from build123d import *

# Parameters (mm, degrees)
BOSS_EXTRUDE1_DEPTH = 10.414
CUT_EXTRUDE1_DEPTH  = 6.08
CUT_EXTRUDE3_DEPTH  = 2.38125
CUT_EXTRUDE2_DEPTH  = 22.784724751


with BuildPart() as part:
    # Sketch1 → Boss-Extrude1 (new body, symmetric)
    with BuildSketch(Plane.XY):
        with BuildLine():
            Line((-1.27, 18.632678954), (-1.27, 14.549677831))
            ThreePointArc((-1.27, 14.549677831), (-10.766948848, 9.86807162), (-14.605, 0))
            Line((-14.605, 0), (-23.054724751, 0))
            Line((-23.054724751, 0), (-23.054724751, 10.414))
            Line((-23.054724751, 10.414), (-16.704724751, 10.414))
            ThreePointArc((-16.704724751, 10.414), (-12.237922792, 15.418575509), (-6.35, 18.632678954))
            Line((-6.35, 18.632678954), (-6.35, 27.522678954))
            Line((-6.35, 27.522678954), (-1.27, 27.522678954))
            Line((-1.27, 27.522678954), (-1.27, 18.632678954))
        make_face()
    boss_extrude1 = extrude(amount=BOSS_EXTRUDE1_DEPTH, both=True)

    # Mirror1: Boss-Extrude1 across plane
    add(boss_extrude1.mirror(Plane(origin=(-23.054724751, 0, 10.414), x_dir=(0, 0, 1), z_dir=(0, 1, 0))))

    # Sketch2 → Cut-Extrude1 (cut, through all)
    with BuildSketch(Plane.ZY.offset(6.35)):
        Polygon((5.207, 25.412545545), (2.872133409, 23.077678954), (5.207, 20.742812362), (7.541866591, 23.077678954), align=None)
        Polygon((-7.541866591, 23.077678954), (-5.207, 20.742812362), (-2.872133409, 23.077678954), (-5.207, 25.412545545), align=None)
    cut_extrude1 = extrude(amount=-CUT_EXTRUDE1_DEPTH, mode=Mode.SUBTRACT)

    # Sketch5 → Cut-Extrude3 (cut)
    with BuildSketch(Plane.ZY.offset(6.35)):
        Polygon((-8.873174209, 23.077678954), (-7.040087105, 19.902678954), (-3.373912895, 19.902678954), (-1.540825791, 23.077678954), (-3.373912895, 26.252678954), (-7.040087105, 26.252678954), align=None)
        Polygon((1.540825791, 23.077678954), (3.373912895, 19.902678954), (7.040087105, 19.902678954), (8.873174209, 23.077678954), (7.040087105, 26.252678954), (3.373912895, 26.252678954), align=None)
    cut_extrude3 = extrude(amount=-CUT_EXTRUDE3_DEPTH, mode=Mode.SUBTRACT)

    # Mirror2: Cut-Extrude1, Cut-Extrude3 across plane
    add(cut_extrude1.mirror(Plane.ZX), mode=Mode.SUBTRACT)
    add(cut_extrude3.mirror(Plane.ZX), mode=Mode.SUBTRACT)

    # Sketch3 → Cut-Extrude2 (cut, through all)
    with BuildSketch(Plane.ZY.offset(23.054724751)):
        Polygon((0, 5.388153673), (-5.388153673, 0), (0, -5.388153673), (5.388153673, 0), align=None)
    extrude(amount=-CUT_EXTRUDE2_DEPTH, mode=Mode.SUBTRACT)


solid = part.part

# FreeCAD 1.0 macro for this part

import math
import FreeCAD as App
import Part
import Sketcher
from FreeCAD import Vector
Q = App.Units.Quantity

doc = App.newDocument("Part")
body = doc.addObject("PartDesign::Body", "Body")

sketch1 = body.newObject("Sketcher::SketchObject", "Sketch")
sketch1.AttachmentSupport = (doc.getObject("XY_Plane"), [""])
sketch1.MapMode = "FlatFace"
sketch1.addGeometry(Part.ArcOfCircle(Part.Circle(Vector(0, 0, 0), Vector(0, 0, 1), 15), math.radians(95), math.radians(180)), False)
sketch1.addGeometry(Part.LineSegment(Vector(-1, 15, 0), Vector(-1, 28, 0)), False)
sketch1.addGeometry(Part.LineSegment(Vector(-1, 28, 0), Vector(-6, 28, 0)), False)
sketch1.addGeometry(Part.LineSegment(Vector(-6, 28, 0), Vector(-6, 19, 0)), False)
sketch1.addGeometry(Part.ArcOfCircle(Part.Circle(Vector(0, 0, 0), Vector(0, 0, 1), 20), math.radians(109), math.radians(148)), False)
sketch1.addGeometry(Part.LineSegment(Vector(-17, 10, 0), Vector(-23, 10, 0)), False)
sketch1.addGeometry(Part.LineSegment(Vector(-23, 10, 0), Vector(-23, 0, 0)), False)
sketch1.addGeometry(Part.LineSegment(Vector(-23, 0, 0), Vector(-15, 0, 0)), False)
sketch1.addConstraint(Sketcher.Constraint("Coincident", 0, 1, 1, 1))
sketch1.addConstraint(Sketcher.Constraint("Coincident", 1, 2, 2, 1))
sketch1.addConstraint(Sketcher.Constraint("Coincident", 2, 2, 3, 1))
sketch1.addConstraint(Sketcher.Constraint("Coincident", 3, 2, 4, 1))
sketch1.addConstraint(Sketcher.Constraint("Coincident", 4, 2, 5, 1))
sketch1.addConstraint(Sketcher.Constraint("Coincident", 5, 2, 6, 1))
sketch1.addConstraint(Sketcher.Constraint("Coincident", 6, 2, 7, 1))
sketch1.addConstraint(Sketcher.Constraint("Coincident", 7, 2, 0, 2))
sketch1.addConstraint(Sketcher.Constraint("Vertical", 1))
sketch1.addConstraint(Sketcher.Constraint("Horizontal", 2))
sketch1.addConstraint(Sketcher.Constraint("Vertical", 3))
sketch1.addConstraint(Sketcher.Constraint("Horizontal", 5))
sketch1.addConstraint(Sketcher.Constraint("Vertical", 6))
sketch1.addConstraint(Sketcher.Constraint("Horizontal", 7))
sketch1.addConstraint(Sketcher.Constraint("Coincident", 0, 3, -1, 1))
sketch1.addConstraint(Sketcher.Constraint("Coincident", 4, 3, -1, 1))
sketch1.addConstraint(Sketcher.Constraint("PointOnObject", 6, 2, -1))
sketch1.addConstraint(Sketcher.Constraint("DistanceX", 2, 2, 2, 1, Q("0.2 in")))
sketch1.addConstraint(Sketcher.Constraint("Radius", 0, Q("0.575 in")))
sketch1.addConstraint(Sketcher.Constraint("Radius", 4, Q("0.775 in")))
sketch1.addConstraint(Sketcher.Constraint("DistanceX", 5, 2, 5, 1, Q("0.25 in")))
sketch1.addConstraint(Sketcher.Constraint("DistanceY", 3, 2, 3, 1, Q("0.35 in")))
sketch1.addConstraint(Sketcher.Constraint("DistanceY", 6, 2, 6, 1, Q("0.41 in")))
sketch1.addConstraint(Sketcher.Constraint("DistanceX", 0, 1, -1, 1, Q("0.05 in")))
pad1 = body.newObject("PartDesign::Pad", "Pad")
pad1.Profile = sketch1
pad1.Length = Q("0.82 in")
pad1.Midplane = True
doc.recompute()

mirrored = body.newObject("PartDesign::Mirrored", "Mirrored")
mirrored.Originals = [pad1]
mirrored.MirrorPlane = (doc.getObject("XZ_Plane"), [""])
body.Tip = mirrored

sketch2 = body.newObject("Sketcher::SketchObject", "Sketch001")
sketch2.AttachmentSupport = (doc.getObject("YZ_Plane"), [""])
sketch2.MapMode = "FlatFace"
sketch2.AttachmentOffset = App.Placement(Vector(0, 0, -0.25 * 25.4), App.Rotation())
sketch2.addGeometry(Part.LineSegment(Vector(25.4, 5.2, 0), Vector(23.1, 2.9, 0)), False)
sketch2.addGeometry(Part.LineSegment(Vector(23.1, 2.9, 0), Vector(20.7, 5.2, 0)), False)
sketch2.addGeometry(Part.LineSegment(Vector(20.7, 5.2, 0), Vector(23.1, 7.5, 0)), False)
sketch2.addGeometry(Part.LineSegment(Vector(23.1, 7.5, 0), Vector(25.4, 5.2, 0)), False)
sketch2.addGeometry(Part.LineSegment(Vector(23.1, -7.5, 0), Vector(20.7, -5.2, 0)), False)
sketch2.addGeometry(Part.LineSegment(Vector(20.7, -5.2, 0), Vector(23.1, -2.9, 0)), False)
sketch2.addGeometry(Part.LineSegment(Vector(23.1, -2.9, 0), Vector(25.4, -5.2, 0)), False)
sketch2.addGeometry(Part.LineSegment(Vector(25.4, -5.2, 0), Vector(23.1, -7.5, 0)), False)
sketch2.addConstraint(Sketcher.Constraint("Coincident", 0, 2, 1, 1))
sketch2.addConstraint(Sketcher.Constraint("Coincident", 1, 2, 2, 1))
sketch2.addConstraint(Sketcher.Constraint("Coincident", 2, 2, 3, 1))
sketch2.addConstraint(Sketcher.Constraint("Coincident", 3, 2, 0, 1))
sketch2.addConstraint(Sketcher.Constraint("Coincident", 4, 2, 5, 1))
sketch2.addConstraint(Sketcher.Constraint("Coincident", 5, 2, 6, 1))
sketch2.addConstraint(Sketcher.Constraint("Coincident", 6, 2, 7, 1))
sketch2.addConstraint(Sketcher.Constraint("Coincident", 7, 2, 4, 1))
sketch2.addConstraint(Sketcher.Constraint("Symmetric", 1, 2, 4, 2, -1))
sketch2.addConstraint(Sketcher.Constraint("Symmetric", 0, 2, 5, 2, -1))
sketch2.addConstraint(Sketcher.Constraint("Symmetric", 3, 2, 6, 2, -1))
sketch2.addConstraint(Sketcher.Constraint("Symmetric", 2, 2, 7, 2, -1))
sketch2.addConstraint(Sketcher.Constraint("Perpendicular", 0, 1))
sketch2.addConstraint(Sketcher.Constraint("Perpendicular", 1, 2))
sketch2.addConstraint(Sketcher.Constraint("Perpendicular", 2, 3))
sketch2.addConstraint(Sketcher.Constraint("Parallel", 3, 4))
sketch2.addConstraint(Sketcher.Constraint("Horizontal", 1, 2, 3, 2))
sketch2.addConstraint(Sketcher.Constraint("Distance", 0, Q("0.13 in")))
sketch2.addConstraint(Sketcher.Constraint("DistanceY", 4, 2, 1, 2, Q("0.41 in")))
sketch2.addConstraint(Sketcher.Constraint("DistanceX", -1, 1, 0, 2, Q("23.077679 mm")))
pocket1 = body.newObject("PartDesign::Pocket", "Pocket")
pocket1.Profile = sketch2
pocket1.Type = "ThroughAll"
pocket1.Reversed = True

sketch3 = body.newObject("Sketcher::SketchObject", "Sketch002")
sketch3.AttachmentSupport = (doc.getObject("YZ_Plane"), [""])
sketch3.MapMode = "FlatFace"
sketch3.AttachmentOffset = App.Placement(Vector(0, 0, -0.25 * 25.4), App.Rotation())
sketch3.addGeometry(Part.LineSegment(Vector(23.1, -8.9, 0), Vector(19.9, -7, 0)), False)
sketch3.addGeometry(Part.LineSegment(Vector(19.9, -7, 0), Vector(19.9, -3.4, 0)), False)
sketch3.addGeometry(Part.LineSegment(Vector(19.9, -3.4, 0), Vector(23.1, -1.5, 0)), False)
sketch3.addGeometry(Part.LineSegment(Vector(23.1, -1.5, 0), Vector(26.3, -3.4, 0)), False)
sketch3.addGeometry(Part.LineSegment(Vector(26.3, -3.4, 0), Vector(26.3, -7, 0)), False)
sketch3.addGeometry(Part.LineSegment(Vector(26.3, -7, 0), Vector(23.1, -8.9, 0)), False)
sketch3.addGeometry(Part.LineSegment(Vector(23.1, 1.5, 0), Vector(19.9, 3.4, 0)), False)
sketch3.addGeometry(Part.LineSegment(Vector(19.9, 3.4, 0), Vector(19.9, 7, 0)), False)
sketch3.addGeometry(Part.LineSegment(Vector(19.9, 7, 0), Vector(23.1, 8.9, 0)), False)
sketch3.addGeometry(Part.LineSegment(Vector(23.1, 8.9, 0), Vector(26.3, 7, 0)), False)
sketch3.addGeometry(Part.LineSegment(Vector(26.3, 7, 0), Vector(26.3, 3.4, 0)), False)
sketch3.addGeometry(Part.LineSegment(Vector(26.3, 3.4, 0), Vector(23.1, 1.5, 0)), False)
sketch3.addConstraint(Sketcher.Constraint("Coincident", 0, 2, 1, 1))
sketch3.addConstraint(Sketcher.Constraint("Coincident", 1, 2, 2, 1))
sketch3.addConstraint(Sketcher.Constraint("Coincident", 2, 2, 3, 1))
sketch3.addConstraint(Sketcher.Constraint("Coincident", 3, 2, 4, 1))
sketch3.addConstraint(Sketcher.Constraint("Coincident", 4, 2, 5, 1))
sketch3.addConstraint(Sketcher.Constraint("Coincident", 5, 2, 0, 1))
sketch3.addConstraint(Sketcher.Constraint("Coincident", 6, 2, 7, 1))
sketch3.addConstraint(Sketcher.Constraint("Coincident", 7, 2, 8, 1))
sketch3.addConstraint(Sketcher.Constraint("Coincident", 8, 2, 9, 1))
sketch3.addConstraint(Sketcher.Constraint("Coincident", 9, 2, 10, 1))
sketch3.addConstraint(Sketcher.Constraint("Coincident", 10, 2, 11, 1))
sketch3.addConstraint(Sketcher.Constraint("Coincident", 11, 2, 6, 1))
sketch3.addConstraint(Sketcher.Constraint("Vertical", 1))
sketch3.addConstraint(Sketcher.Constraint("Vertical", 4))
sketch3.addConstraint(Sketcher.Constraint("Vertical", 7))
sketch3.addConstraint(Sketcher.Constraint("Vertical", 10))
sketch3.addConstraint(Sketcher.Constraint("Symmetric", 1, 2, 6, 2, -1))
sketch3.addConstraint(Sketcher.Constraint("Symmetric", 5, 2, 8, 2, -1))
sketch3.addConstraint(Sketcher.Constraint("Symmetric", 4, 2, 9, 2, -1))
sketch3.addConstraint(Sketcher.Constraint("Symmetric", 2, 2, 11, 2, -1))
sketch3.addConstraint(Sketcher.Constraint("Parallel", 0, 3))
sketch3.addConstraint(Sketcher.Constraint("Parallel", 2, 5))
sketch3.addConstraint(Sketcher.Constraint("Parallel", 3, 6))
sketch3.addConstraint(Sketcher.Constraint("Parallel", 5, 8))
sketch3.addConstraint(Sketcher.Constraint("Parallel", 8, 11))
sketch3.addConstraint(Sketcher.Constraint("Horizontal", 1, 2, 3, 2))
sketch3.addConstraint(Sketcher.Constraint("Horizontal", 0, 2, 4, 2))
sketch3.addConstraint(Sketcher.Constraint("Angle", 0, Q("150 deg")))
sketch3.addConstraint(Sketcher.Constraint("DistanceX", 1, 2, 3, 2, Q("0.25 in")))
sketch3.addConstraint(Sketcher.Constraint("DistanceY", 0, 2, 6, 2, Q("0.41 in")))
sketch3.addConstraint(Sketcher.Constraint("DistanceY", 1, 1, 1, 2, Q("3.666174 mm")))
sketch3.addConstraint(Sketcher.Constraint("DistanceX", -1, 1, 0, 2, Q("19.902679 mm")))
pocket2 = body.newObject("PartDesign::Pocket", "Pocket001")
pocket2.Profile = sketch3
pocket2.Length = Q("0.09375 in")
pocket2.Reversed = True
doc.recompute()

mirrored2 = body.newObject("PartDesign::Mirrored", "Mirrored001")
mirrored2.Originals = [pocket1, pocket2]
mirrored2.MirrorPlane = (doc.getObject("XZ_Plane"), [""])
body.Tip = mirrored2

sketch4 = body.newObject("Sketcher::SketchObject", "Sketch003")
sketch4.AttachmentSupport = (doc.getObject("YZ_Plane"), [""])
sketch4.MapMode = "FlatFace"
sketch4.AttachmentOffset = App.Placement(Vector(0, 0, -23.054725), App.Rotation())
sketch4.addGeometry(Part.LineSegment(Vector(5, 0, 0), Vector(0, -5, 0)), False)
sketch4.addGeometry(Part.LineSegment(Vector(0, -5, 0), Vector(-5, 0, 0)), False)
sketch4.addGeometry(Part.LineSegment(Vector(-5, 0, 0), Vector(0, 5, 0)), False)
sketch4.addGeometry(Part.LineSegment(Vector(0, 5, 0), Vector(5, 0, 0)), False)
sketch4.addConstraint(Sketcher.Constraint("Coincident", 0, 2, 1, 1))
sketch4.addConstraint(Sketcher.Constraint("Coincident", 1, 2, 2, 1))
sketch4.addConstraint(Sketcher.Constraint("Coincident", 2, 2, 3, 1))
sketch4.addConstraint(Sketcher.Constraint("Coincident", 3, 2, 0, 1))
sketch4.addConstraint(Sketcher.Constraint("Symmetric", 0, 2, 2, 2, -1, 1))
sketch4.addConstraint(Sketcher.Constraint("Symmetric", 1, 2, 3, 2, -1, 1))
sketch4.addConstraint(Sketcher.Constraint("PointOnObject", 0, 2, -2))
sketch4.addConstraint(Sketcher.Constraint("PointOnObject", 1, 2, -1))
sketch4.addConstraint(Sketcher.Constraint("Perpendicular", 0, 1))
sketch4.addConstraint(Sketcher.Constraint("Distance", 0, Q("0.3 in")))
pocket3 = body.newObject("PartDesign::Pocket", "Pocket002")
pocket3.Profile = sketch4
pocket3.Type = "ThroughAll"
pocket3.Reversed = True

doc.recompute()
